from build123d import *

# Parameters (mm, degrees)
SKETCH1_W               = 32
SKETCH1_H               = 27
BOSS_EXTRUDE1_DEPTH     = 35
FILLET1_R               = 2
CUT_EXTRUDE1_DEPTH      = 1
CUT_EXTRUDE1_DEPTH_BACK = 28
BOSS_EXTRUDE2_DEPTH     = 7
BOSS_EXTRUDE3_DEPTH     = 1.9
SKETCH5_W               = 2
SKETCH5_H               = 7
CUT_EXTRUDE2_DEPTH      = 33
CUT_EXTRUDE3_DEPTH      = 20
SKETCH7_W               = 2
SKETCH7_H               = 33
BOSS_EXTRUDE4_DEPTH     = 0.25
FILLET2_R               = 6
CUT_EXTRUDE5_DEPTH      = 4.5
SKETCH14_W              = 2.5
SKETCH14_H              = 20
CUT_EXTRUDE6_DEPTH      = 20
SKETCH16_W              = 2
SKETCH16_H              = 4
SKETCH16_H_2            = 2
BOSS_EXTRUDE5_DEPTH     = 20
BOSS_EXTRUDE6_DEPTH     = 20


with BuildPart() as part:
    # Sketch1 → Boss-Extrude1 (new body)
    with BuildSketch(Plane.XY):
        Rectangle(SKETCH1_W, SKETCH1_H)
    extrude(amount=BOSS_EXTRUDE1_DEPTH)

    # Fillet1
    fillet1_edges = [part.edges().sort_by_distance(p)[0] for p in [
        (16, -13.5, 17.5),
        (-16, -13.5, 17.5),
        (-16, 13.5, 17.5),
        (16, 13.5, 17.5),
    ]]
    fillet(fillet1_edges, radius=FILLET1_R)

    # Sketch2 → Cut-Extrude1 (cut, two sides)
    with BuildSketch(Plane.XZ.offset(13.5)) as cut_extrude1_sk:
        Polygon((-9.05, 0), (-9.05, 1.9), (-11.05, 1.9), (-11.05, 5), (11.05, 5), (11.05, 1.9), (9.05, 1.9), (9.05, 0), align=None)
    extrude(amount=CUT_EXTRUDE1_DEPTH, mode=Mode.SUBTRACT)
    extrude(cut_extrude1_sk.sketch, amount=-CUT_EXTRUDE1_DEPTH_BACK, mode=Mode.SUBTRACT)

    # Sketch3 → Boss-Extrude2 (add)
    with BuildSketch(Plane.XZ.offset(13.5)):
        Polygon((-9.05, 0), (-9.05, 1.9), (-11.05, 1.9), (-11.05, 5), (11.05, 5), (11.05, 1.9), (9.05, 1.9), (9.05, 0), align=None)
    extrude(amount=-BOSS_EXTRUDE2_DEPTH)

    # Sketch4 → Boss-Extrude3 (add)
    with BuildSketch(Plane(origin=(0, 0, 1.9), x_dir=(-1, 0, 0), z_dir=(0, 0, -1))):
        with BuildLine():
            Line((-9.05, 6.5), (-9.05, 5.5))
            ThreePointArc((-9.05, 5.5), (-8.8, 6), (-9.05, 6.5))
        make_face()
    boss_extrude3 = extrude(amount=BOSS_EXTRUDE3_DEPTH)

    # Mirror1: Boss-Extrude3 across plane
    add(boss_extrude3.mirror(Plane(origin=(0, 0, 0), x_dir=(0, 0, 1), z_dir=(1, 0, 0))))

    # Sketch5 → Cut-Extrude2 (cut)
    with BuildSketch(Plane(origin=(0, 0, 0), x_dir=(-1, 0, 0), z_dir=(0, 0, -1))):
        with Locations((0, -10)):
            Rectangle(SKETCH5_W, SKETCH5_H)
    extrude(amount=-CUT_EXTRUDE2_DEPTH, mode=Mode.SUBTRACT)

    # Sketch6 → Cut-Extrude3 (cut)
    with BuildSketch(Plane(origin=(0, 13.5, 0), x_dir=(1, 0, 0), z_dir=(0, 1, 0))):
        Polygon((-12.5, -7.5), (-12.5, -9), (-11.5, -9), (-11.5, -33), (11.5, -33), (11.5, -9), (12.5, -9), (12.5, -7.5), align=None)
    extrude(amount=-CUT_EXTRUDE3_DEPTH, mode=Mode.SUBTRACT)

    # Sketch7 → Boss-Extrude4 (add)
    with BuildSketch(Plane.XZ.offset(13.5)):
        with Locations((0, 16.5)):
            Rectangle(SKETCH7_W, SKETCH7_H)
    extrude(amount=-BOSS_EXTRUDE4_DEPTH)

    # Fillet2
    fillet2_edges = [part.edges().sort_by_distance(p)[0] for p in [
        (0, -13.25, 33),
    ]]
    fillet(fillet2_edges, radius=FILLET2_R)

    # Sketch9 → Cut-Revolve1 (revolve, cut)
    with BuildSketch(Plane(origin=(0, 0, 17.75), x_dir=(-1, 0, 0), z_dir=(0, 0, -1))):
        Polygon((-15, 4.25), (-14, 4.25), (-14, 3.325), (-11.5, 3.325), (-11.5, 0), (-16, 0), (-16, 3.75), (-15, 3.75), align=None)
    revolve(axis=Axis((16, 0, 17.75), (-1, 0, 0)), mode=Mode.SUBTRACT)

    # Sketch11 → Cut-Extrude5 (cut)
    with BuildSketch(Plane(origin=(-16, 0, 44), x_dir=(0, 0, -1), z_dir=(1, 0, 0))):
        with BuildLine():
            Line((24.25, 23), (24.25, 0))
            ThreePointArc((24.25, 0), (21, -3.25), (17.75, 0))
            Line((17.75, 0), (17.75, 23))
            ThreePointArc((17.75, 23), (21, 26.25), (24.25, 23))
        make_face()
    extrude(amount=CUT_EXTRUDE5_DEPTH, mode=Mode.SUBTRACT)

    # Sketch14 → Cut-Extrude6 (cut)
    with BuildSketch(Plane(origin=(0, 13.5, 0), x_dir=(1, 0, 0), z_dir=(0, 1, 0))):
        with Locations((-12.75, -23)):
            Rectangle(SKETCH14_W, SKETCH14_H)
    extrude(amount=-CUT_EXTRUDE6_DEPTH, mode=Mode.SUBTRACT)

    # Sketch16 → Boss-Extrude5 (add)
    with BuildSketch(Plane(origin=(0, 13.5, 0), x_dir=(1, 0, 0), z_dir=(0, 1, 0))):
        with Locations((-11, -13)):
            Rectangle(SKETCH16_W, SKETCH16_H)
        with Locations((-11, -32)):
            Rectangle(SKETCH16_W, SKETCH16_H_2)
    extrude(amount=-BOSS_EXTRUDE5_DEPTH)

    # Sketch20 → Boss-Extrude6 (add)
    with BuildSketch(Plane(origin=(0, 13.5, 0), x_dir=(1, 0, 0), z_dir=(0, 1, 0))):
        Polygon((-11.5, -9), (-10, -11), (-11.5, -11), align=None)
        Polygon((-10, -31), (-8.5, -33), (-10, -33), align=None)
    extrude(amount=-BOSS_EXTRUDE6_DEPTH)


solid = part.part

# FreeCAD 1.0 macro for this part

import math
import FreeCAD as App
import Part
import Sketcher
Q = App.Units.Quantity


def edges_at(feature, points):
    """Names of the edges that pass closest to the given points."""
    edges = feature.Shape.Edges
    near = lambda p: min(range(len(edges)), key=lambda i: edges[i].distToShape(Part.Vertex(*p))[0])
    return sorted({f"Edge{near(p) + 1}" for p in points})

doc = App.newDocument("Part")
body = doc.addObject("PartDesign::Body", "Body")

sketch1 = body.newObject("Sketcher::SketchObject", "Sketch")
sketch1.AttachmentSupport = (doc.getObject("XY_Plane"), [""])
sketch1.MapMode = "FlatFace"
sketch1.addGeometry([
    Part.LineSegment(App.Vector(-16, 14, 0), App.Vector(-16, -14, 0)),
    Part.LineSegment(App.Vector(-16, -14, 0), App.Vector(16, -14, 0)),
    Part.LineSegment(App.Vector(16, -14, 0), App.Vector(16, 14, 0)),
    Part.LineSegment(App.Vector(16, 14, 0), App.Vector(-16, 14, 0)),
], False)
sketch1.addConstraint([
    Sketcher.Constraint("Coincident", 0, 2, 1, 1),
    Sketcher.Constraint("Coincident", 1, 2, 2, 1),
    Sketcher.Constraint("Coincident", 2, 2, 3, 1),
    Sketcher.Constraint("Coincident", 3, 2, 0, 1),
    Sketcher.Constraint("Vertical", 0),
    Sketcher.Constraint("Horizontal", 1),
    Sketcher.Constraint("Vertical", 2),
    Sketcher.Constraint("Horizontal", 3),
    Sketcher.Constraint("Symmetric", 0, 2, 2, 2, -1, 1),
    Sketcher.Constraint("DistanceX", 1, 1, 1, 2, Q("32 mm")),
    Sketcher.Constraint("DistanceY", 0, 2, 0, 1, Q("27 mm")),
])
pad1 = body.newObject("PartDesign::Pad", "Pad")
pad1.Profile = sketch1
pad1.Length = 35
doc.recompute()

fillet = body.newObject("PartDesign::Fillet", "Fillet")
fillet.Base = (pad1, edges_at(pad1, [
    (16, -13.5, 17.5),
    (-16, -13.5, 17.5),
    (-16, 13.5, 17.5),
    (16, 13.5, 17.5),
]))
fillet.Radius = 2

sketch2 = body.newObject("Sketcher::SketchObject", "Sketch001")
sketch2.AttachmentSupport = (doc.getObject("XZ_Plane"), [""])
sketch2.MapMode = "FlatFace"
sketch2.AttachmentOffset = App.Placement(App.Vector(0, 0, 13.5), App.Rotation())
sketch2.addGeometry([
    Part.LineSegment(App.Vector(-9.1, 1.9, 0), App.Vector(-9.1, 0, 0)),
    Part.LineSegment(App.Vector(-9.1, 0, 0), App.Vector(9.1, 0, 0)),
    Part.LineSegment(App.Vector(9.1, 0, 0), App.Vector(9.1, 1.9, 0)),
    Part.LineSegment(App.Vector(9.1, 1.9, 0), App.Vector(11.1, 1.9, 0)),
    Part.LineSegment(App.Vector(11.1, 1.9, 0), App.Vector(11.1, 5, 0)),
    Part.LineSegment(App.Vector(11.1, 5, 0), App.Vector(-11.1, 5, 0)),
    Part.LineSegment(App.Vector(-11.1, 5, 0), App.Vector(-11.1, 1.9, 0)),
    Part.LineSegment(App.Vector(-11.1, 1.9, 0), App.Vector(-9.1, 1.9, 0)),
], False)
sketch2.addConstraint([
    Sketcher.Constraint("Coincident", 0, 2, 1, 1),
    Sketcher.Constraint("Coincident", 1, 2, 2, 1),
    Sketcher.Constraint("Coincident", 2, 2, 3, 1),
    Sketcher.Constraint("Coincident", 3, 2, 4, 1),
    Sketcher.Constraint("Coincident", 4, 2, 5, 1),
    Sketcher.Constraint("Coincident", 5, 2, 6, 1),
    Sketcher.Constraint("Coincident", 6, 2, 7, 1),
    Sketcher.Constraint("Coincident", 7, 2, 0, 1),
    Sketcher.Constraint("Vertical", 0),
    Sketcher.Constraint("Horizontal", 1),
    Sketcher.Constraint("Vertical", 2),
    Sketcher.Constraint("Horizontal", 3),
    Sketcher.Constraint("Vertical", 4),
    Sketcher.Constraint("Horizontal", 5),
    Sketcher.Constraint("Vertical", 6),
    Sketcher.Constraint("Horizontal", 7),
    Sketcher.Constraint("Symmetric", 0, 2, 1, 2, -1, 1),
    Sketcher.Constraint("Symmetric", 3, 2, 6, 2, -2),
    Sketcher.Constraint("DistanceX", 3, 1, 3, 2, Q("2 mm")),
    Sketcher.Constraint("DistanceX", 1, 1, 1, 2, Q("18.1 mm")),
    Sketcher.Constraint("DistanceY", 0, 2, 0, 1, Q("1.9 mm")),
    Sketcher.Constraint("DistanceY", 4, 1, 4, 2, Q("3.1 mm")),
])
pocket1 = body.newObject("PartDesign::Pocket", "Pocket")
pocket1.Profile = sketch2
pocket1.Type = "ThroughAll"
pocket1.Midplane = True

sketch3 = body.newObject("Sketcher::SketchObject", "Sketch002")
sketch3.AttachmentSupport = (doc.getObject("XZ_Plane"), [""])
sketch3.MapMode = "FlatFace"
sketch3.AttachmentOffset = App.Placement(App.Vector(0, 0, 13.5), App.Rotation())
sketch3.addGeometry([
    Part.LineSegment(App.Vector(-9.1, 1.9, 0), App.Vector(-9.1, 0, 0)),
    Part.LineSegment(App.Vector(-9.1, 0, 0), App.Vector(9.1, 0, 0)),
    Part.LineSegment(App.Vector(9.1, 0, 0), App.Vector(9.1, 1.9, 0)),
    Part.LineSegment(App.Vector(9.1, 1.9, 0), App.Vector(11.1, 1.9, 0)),
    Part.LineSegment(App.Vector(11.1, 1.9, 0), App.Vector(11.1, 5, 0)),
    Part.LineSegment(App.Vector(11.1, 5, 0), App.Vector(-11.1, 5, 0)),
    Part.LineSegment(App.Vector(-11.1, 5, 0), App.Vector(-11.1, 1.9, 0)),
    Part.LineSegment(App.Vector(-11.1, 1.9, 0), App.Vector(-9.1, 1.9, 0)),
], False)
sketch3.addConstraint([
    Sketcher.Constraint("Coincident", 0, 2, 1, 1),
    Sketcher.Constraint("Coincident", 1, 2, 2, 1),
    Sketcher.Constraint("Coincident", 2, 2, 3, 1),
    Sketcher.Constraint("Coincident", 3, 2, 4, 1),
    Sketcher.Constraint("Coincident", 4, 2, 5, 1),
    Sketcher.Constraint("Coincident", 5, 2, 6, 1),
    Sketcher.Constraint("Coincident", 6, 2, 7, 1),
    Sketcher.Constraint("Coincident", 7, 2, 0, 1),
    Sketcher.Constraint("Vertical", 0),
    Sketcher.Constraint("Horizontal", 1),
    Sketcher.Constraint("Vertical", 2),
    Sketcher.Constraint("Horizontal", 3),
    Sketcher.Constraint("Vertical", 4),
    Sketcher.Constraint("Horizontal", 5),
    Sketcher.Constraint("Vertical", 6),
    Sketcher.Constraint("Horizontal", 7),
    Sketcher.Constraint("Symmetric", 0, 2, 1, 2, -1, 1),
    Sketcher.Constraint("Symmetric", 3, 2, 6, 2, -2),
    Sketcher.Constraint("DistanceX", 3, 1, 3, 2, Q("2 mm")),
    Sketcher.Constraint("DistanceX", 1, 1, 1, 2, Q("18.1 mm")),
    Sketcher.Constraint("DistanceY", 0, 2, 0, 1, Q("1.9 mm")),
    Sketcher.Constraint("DistanceY", 4, 1, 4, 2, Q("3.1 mm")),
])
pad2 = body.newObject("PartDesign::Pad", "Pad001")
pad2.Profile = sketch3
pad2.Length = 7
pad2.Reversed = True

sketch4 = body.newObject("Sketcher::SketchObject", "Sketch003")
sketch4.AttachmentSupport = (doc.getObject("XY_Plane"), [""])
sketch4.MapMode = "FlatFace"
sketch4.AttachmentOffset = App.Placement(App.Vector(0, 0, 1.9), App.Rotation())
sketch4.addGeometry([
    Part.LineSegment(App.Vector(9.1, 6.5, 0), App.Vector(9.1, 5.5, 0)),
    Part.ArcOfCircle(Part.Circle(App.Vector(9.4, 6, 0), App.Vector(0, 0, 1), 0.6), math.radians(127), math.radians(233)),
], False)
sketch4.addConstraint([
    Sketcher.Constraint("Coincident", 0, 1, 1, 1),
    Sketcher.Constraint("Coincident", 1, 2, 0, 2),
    Sketcher.Constraint("Vertical", 0),
    Sketcher.Constraint("DistanceY", 0, 2, 0, 1, Q("1 mm")),
    Sketcher.Constraint("DistanceY", -1, 1, 1, 3, Q("6 mm")),
    Sketcher.Constraint("Radius", 1, Q("0.625 mm")),
    Sketcher.Constraint("DistanceX", -1, 1, 0, 1, Q("9.05 mm")),
])
pad3 = body.newObject("PartDesign::Pad", "Pad002")
pad3.Profile = sketch4
pad3.Length = 1.9
pad3.Reversed = True
doc.recompute()

mirrored = body.newObject("PartDesign::Mirrored", "Mirrored")
mirrored.Originals = [pad3]
mirrored.MirrorPlane = (doc.getObject("YZ_Plane"), [""])
body.Tip = mirrored

sketch5 = body.newObject("Sketcher::SketchObject", "Sketch004")
sketch5.AttachmentSupport = (doc.getObject("XY_Plane"), [""])
sketch5.MapMode = "FlatFace"
sketch5.addGeometry([
    Part.LineSegment(App.Vector(1, -6.5, 0), App.Vector(1, -13.5, 0)),
    Part.LineSegment(App.Vector(1, -13.5, 0), App.Vector(-1, -13.5, 0)),
    Part.LineSegment(App.Vector(-1, -13.5, 0), App.Vector(-1, -6.5, 0)),
    Part.LineSegment(App.Vector(-1, -6.5, 0), App.Vector(1, -6.5, 0)),
], False)
sketch5.addConstraint([
    Sketcher.Constraint("Coincident", 0, 2, 1, 1),
    Sketcher.Constraint("Coincident", 1, 2, 2, 1),
    Sketcher.Constraint("Coincident", 2, 2, 3, 1),
    Sketcher.Constraint("Coincident", 3, 2, 0, 1),
    Sketcher.Constraint("Vertical", 0),
    Sketcher.Constraint("Horizontal", 1),
    Sketcher.Constraint("Vertical", 2),
    Sketcher.Constraint("Horizontal", 3),
    Sketcher.Constraint("DistanceX", 1, 2, 1, 1, Q("2 mm")),
    Sketcher.Constraint("DistanceY", 0, 2, 0, 1, Q("7 mm")),
    Sketcher.Constraint("DistanceX", -1, 1, 0, 2, Q("1 mm")),
    Sketcher.Constraint("DistanceY", 0, 2, -1, 1, Q("13.5 mm")),
])
pocket2 = body.newObject("PartDesign::Pocket", "Pocket001")
pocket2.Profile = sketch5
pocket2.Length = 33
pocket2.Reversed = True

sketch6 = body.newObject("Sketcher::SketchObject", "Sketch005")
sketch6.AttachmentSupport = (doc.getObject("XZ_Plane"), [""])
sketch6.MapMode = "FlatFace"
sketch6.AttachmentOffset = App.Placement(App.Vector(0, 0, -13.5), App.Rotation())
sketch6.addGeometry([
    Part.LineSegment(App.Vector(-12.5, 7.5, 0), App.Vector(-12.5, 9, 0)),
    Part.LineSegment(App.Vector(-12.5, 9, 0), App.Vector(-11.5, 9, 0)),
    Part.LineSegment(App.Vector(-11.5, 9, 0), App.Vector(-11.5, 33, 0)),
    Part.LineSegment(App.Vector(-11.5, 33, 0), App.Vector(11.5, 33, 0)),
    Part.LineSegment(App.Vector(11.5, 33, 0), App.Vector(11.5, 9, 0)),
    Part.LineSegment(App.Vector(11.5, 9, 0), App.Vector(12.5, 9, 0)),
    Part.LineSegment(App.Vector(12.5, 9, 0), App.Vector(12.5, 7.5, 0)),
    Part.LineSegment(App.Vector(12.5, 7.5, 0), App.Vector(-12.5, 7.5, 0)),
], False)
sketch6.addConstraint([
    Sketcher.Constraint("Coincident", 0, 2, 1, 1),
    Sketcher.Constraint("Coincident", 1, 2, 2, 1),
    Sketcher.Constraint("Coincident", 2, 2, 3, 1),
    Sketcher.Constraint("Coincident", 3, 2, 4, 1),
    Sketcher.Constraint("Coincident", 4, 2, 5, 1),
    Sketcher.Constraint("Coincident", 5, 2, 6, 1),
    Sketcher.Constraint("Coincident", 6, 2, 7, 1),
    Sketcher.Constraint("Coincident", 7, 2, 0, 1),
    Sketcher.Constraint("Vertical", 0),
    Sketcher.Constraint("Horizontal", 1),
    Sketcher.Constraint("Vertical", 2),
    Sketcher.Constraint("Horizontal", 3),
    Sketcher.Constraint("Vertical", 4),
    Sketcher.Constraint("Horizontal", 5),
    Sketcher.Constraint("Vertical", 6),
    Sketcher.Constraint("Horizontal", 7),
    Sketcher.Constraint("Symmetric", 1, 2, 4, 2, -2),
    Sketcher.Constraint("Equal", 1, 5),
    Sketcher.Constraint("DistanceX", 1, 1, 1, 2, Q("1 mm")),
    Sketcher.Constraint("DistanceX", 3, 1, 3, 2, Q("23 mm")),
    Sketcher.Constraint("DistanceY", 2, 1, 2, 2, Q("24 mm")),
    Sketcher.Constraint("DistanceY", 0, 1, 0, 2, Q("1.5 mm")),
    Sketcher.Constraint("DistanceY", -1, 1, 0, 2, Q("9 mm")),
])
pocket3 = body.newObject("PartDesign::Pocket", "Pocket002")
pocket3.Profile = sketch6
pocket3.Length = 20
pocket3.Reversed = True

sketch7 = body.newObject("Sketcher::SketchObject", "Sketch006")
sketch7.AttachmentSupport = (doc.getObject("XZ_Plane"), [""])
sketch7.MapMode = "FlatFace"
sketch7.AttachmentOffset = App.Placement(App.Vector(0, 0, 13.5), App.Rotation())
sketch7.addGeometry([
    Part.LineSegment(App.Vector(-1, 33, 0), App.Vector(-1, 0, 0)),
    Part.LineSegment(App.Vector(-1, 0, 0), App.Vector(1, 0, 0)),
    Part.LineSegment(App.Vector(1, 0, 0), App.Vector(1, 33, 0)),
    Part.LineSegment(App.Vector(1, 33, 0), App.Vector(-1, 33, 0)),
], False)
sketch7.addConstraint([
    Sketcher.Constraint("Coincident", 0, 2, 1, 1),
    Sketcher.Constraint("Coincident", 1, 2, 2, 1),
    Sketcher.Constraint("Coincident", 2, 2, 3, 1),
    Sketcher.Constraint("Coincident", 3, 2, 0, 1),
    Sketcher.Constraint("Vertical", 0),
    Sketcher.Constraint("Horizontal", 1),
    Sketcher.Constraint("Vertical", 2),
    Sketcher.Constraint("Horizontal", 3),
    Sketcher.Constraint("Symmetric", 0, 2, 1, 2, -1, 1),
    Sketcher.Constraint("DistanceX", 1, 1, 1, 2, Q("2 mm")),
    Sketcher.Constraint("DistanceY", 0, 2, 0, 1, Q("33 mm")),
])
pad4 = body.newObject("PartDesign::Pad", "Pad003")
pad4.Profile = sketch7
pad4.Length = 0.25
pad4.Reversed = True
doc.recompute()

fillet2 = body.newObject("PartDesign::Fillet", "Fillet001")
fillet2.Base = (pad4, edges_at(pad4, [(0, -13.25, 33)]))
fillet2.Radius = 6

sketch8 = body.newObject("Sketcher::SketchObject", "Sketch007")
sketch8.AttachmentSupport = (doc.getObject("XY_Plane"), [""])
sketch8.MapMode = "FlatFace"
sketch8.AttachmentOffset = App.Placement(App.Vector(0, 0, 17.75), App.Rotation())
sketch8.addGeometry([
    Part.LineSegment(App.Vector(14, 4.2, 0), App.Vector(15, 4.2, 0)),
    Part.LineSegment(App.Vector(15, 4.2, 0), App.Vector(15, 3.8, 0)),
    Part.LineSegment(App.Vector(15, 3.8, 0), App.Vector(16, 3.8, 0)),
    Part.LineSegment(App.Vector(16, 3.8, 0), App.Vector(16, 0, 0)),
    Part.LineSegment(App.Vector(16, 0, 0), App.Vector(11.5, 0, 0)),
    Part.LineSegment(App.Vector(11.5, 0, 0), App.Vector(11.5, 3.3, 0)),
    Part.LineSegment(App.Vector(11.5, 3.3, 0), App.Vector(14, 3.3, 0)),
    Part.LineSegment(App.Vector(14, 3.3, 0), App.Vector(14, 4.2, 0)),
], False)
sketch8.addConstraint([
    Sketcher.Constraint("Coincident", 0, 2, 1, 1),
    Sketcher.Constraint("Coincident", 1, 2, 2, 1),
    Sketcher.Constraint("Coincident", 2, 2, 3, 1),
    Sketcher.Constraint("Coincident", 3, 2, 4, 1),
    Sketcher.Constraint("Coincident", 4, 2, 5, 1),
    Sketcher.Constraint("Coincident", 5, 2, 6, 1),
    Sketcher.Constraint("Coincident", 6, 2, 7, 1),
    Sketcher.Constraint("Coincident", 7, 2, 0, 1),
    Sketcher.Constraint("Horizontal", 0),
    Sketcher.Constraint("Vertical", 1),
    Sketcher.Constraint("Horizontal", 2),
    Sketcher.Constraint("Vertical", 3),
    Sketcher.Constraint("Horizontal", 4),
    Sketcher.Constraint("Vertical", 5),
    Sketcher.Constraint("Horizontal", 6),
    Sketcher.Constraint("Vertical", 7),
    Sketcher.Constraint("PointOnObject", 3, 2, -1),
    Sketcher.Constraint("Equal", 0, 2),
    Sketcher.Constraint("DistanceX", 0, 1, 0, 2, Q("1 mm")),
    Sketcher.Constraint("DistanceX", 4, 2, 4, 1, Q("4.5 mm")),
    Sketcher.Constraint("DistanceY", 1, 2, 1, 1, Q("0.5 mm")),
    Sketcher.Constraint("DistanceX", -1, 1, 0, 2, Q("15 mm")),
    Sketcher.Constraint("DistanceY", 3, 2, 3, 1, Q("3.75 mm")),
    Sketcher.Constraint("DistanceY", 5, 1, 5, 2, Q("3.325 mm")),
])
groove = body.newObject("PartDesign::Groove", "Groove")
groove.Profile = sketch8
groove.ReferenceAxis = (sketch8, ["H_Axis"])
groove.Angle = 360

sketch9 = body.newObject("Sketcher::SketchObject", "Sketch008")
sketch9.AttachmentSupport = (doc.getObject("YZ_Plane"), [""])
sketch9.MapMode = "FlatFace"
sketch9.AttachmentOffset = App.Placement(App.Vector(0, 0, -16), App.Rotation())
sketch9.addGeometry([
    Part.LineSegment(App.Vector(0, 19.8, 0), App.Vector(23, 19.8, 0)),
    Part.ArcOfCircle(Part.Circle(App.Vector(23, 23, 0), App.Vector(0, 0, 1), 3.2), math.radians(-90), math.radians(90)),
    Part.LineSegment(App.Vector(23, 26.2, 0), App.Vector(0, 26.2, 0)),
    Part.ArcOfCircle(Part.Circle(App.Vector(0, 23, 0), App.Vector(0, 0, 1), 3.2), math.radians(90), math.radians(270)),
], False)
sketch9.addConstraint([
    Sketcher.Constraint("Tangent", 0, 2, 1, 1),
    Sketcher.Constraint("Tangent", 1, 2, 2, 1),
    Sketcher.Constraint("Tangent", 2, 2, 3, 1),
    Sketcher.Constraint("Tangent", 3, 2, 0, 1),
    Sketcher.Constraint("Horizontal", 0),
    Sketcher.Constraint("Horizontal", 2),
    Sketcher.Constraint("PointOnObject", 3, 3, -2),
    Sketcher.Constraint("DistanceX", 0, 1, 0, 2, Q("23 mm")),
    Sketcher.Constraint("Radius", 1, Q("3.25 mm")),
    Sketcher.Constraint("DistanceY", -1, 1, 1, 3, Q("23 mm")),
])
pocket4 = body.newObject("PartDesign::Pocket", "Pocket003")
pocket4.Profile = sketch9
pocket4.Length = 4.5
pocket4.Reversed = True

sketch10 = body.newObject("Sketcher::SketchObject", "Sketch009")
sketch10.AttachmentSupport = (doc.getObject("XZ_Plane"), [""])
sketch10.MapMode = "FlatFace"
sketch10.AttachmentOffset = App.Placement(App.Vector(0, 0, -13.5), App.Rotation())
sketch10.addGeometry([
    Part.LineSegment(App.Vector(-14, 13, 0), App.Vector(-14, 33, 0)),
    Part.LineSegment(App.Vector(-14, 33, 0), App.Vector(-11.5, 33, 0)),
    Part.LineSegment(App.Vector(-11.5, 33, 0), App.Vector(-11.5, 13, 0)),
    Part.LineSegment(App.Vector(-11.5, 13, 0), App.Vector(-14, 13, 0)),
], False)
sketch10.addConstraint([
    Sketcher.Constraint("Coincident", 0, 2, 1, 1),
    Sketcher.Constraint("Coincident", 1, 2, 2, 1),
    Sketcher.Constraint("Coincident", 2, 2, 3, 1),
    Sketcher.Constraint("Coincident", 3, 2, 0, 1),
    Sketcher.Constraint("Vertical", 0),
    Sketcher.Constraint("Horizontal", 1),
    Sketcher.Constraint("Vertical", 2),
    Sketcher.Constraint("Horizontal", 3),
    Sketcher.Constraint("DistanceY", 0, 1, 0, 2, Q("20 mm")),
    Sketcher.Constraint("DistanceX", 1, 1, 1, 2, Q("2.5 mm")),
    Sketcher.Constraint("DistanceX", 0, 2, -1, 1, Q("14 mm")),
    Sketcher.Constraint("DistanceY", -1, 1, 0, 2, Q("33 mm")),
])
pocket5 = body.newObject("PartDesign::Pocket", "Pocket004")
pocket5.Profile = sketch10
pocket5.Length = 20
pocket5.Reversed = True

sketch11 = body.newObject("Sketcher::SketchObject", "Sketch010")
sketch11.AttachmentSupport = (doc.getObject("XZ_Plane"), [""])
sketch11.MapMode = "FlatFace"
sketch11.AttachmentOffset = App.Placement(App.Vector(0, 0, -13.5), App.Rotation())
sketch11.addGeometry([
    Part.LineSegment(App.Vector(-12, 11, 0), App.Vector(-12, 15, 0)),
    Part.LineSegment(App.Vector(-12, 15, 0), App.Vector(-10, 15, 0)),
    Part.LineSegment(App.Vector(-10, 15, 0), App.Vector(-10, 11, 0)),
    Part.LineSegment(App.Vector(-10, 11, 0), App.Vector(-12, 11, 0)),
    Part.LineSegment(App.Vector(-12, 31, 0), App.Vector(-12, 33, 0)),
    Part.LineSegment(App.Vector(-12, 33, 0), App.Vector(-10, 33, 0)),
    Part.LineSegment(App.Vector(-10, 33, 0), App.Vector(-10, 31, 0)),
    Part.LineSegment(App.Vector(-10, 31, 0), App.Vector(-12, 31, 0)),
], False)
sketch11.addConstraint([
    Sketcher.Constraint("Coincident", 0, 2, 1, 1),
    Sketcher.Constraint("Coincident", 1, 2, 2, 1),
    Sketcher.Constraint("Coincident", 2, 2, 3, 1),
    Sketcher.Constraint("Coincident", 3, 2, 0, 1),
    Sketcher.Constraint("Coincident", 4, 2, 5, 1),
    Sketcher.Constraint("Coincident", 5, 2, 6, 1),
    Sketcher.Constraint("Coincident", 6, 2, 7, 1),
    Sketcher.Constraint("Coincident", 7, 2, 4, 1),
    Sketcher.Constraint("Vertical", 0),
    Sketcher.Constraint("Horizontal", 1),
    Sketcher.Constraint("Vertical", 2),
    Sketcher.Constraint("Horizontal", 3),
    Sketcher.Constraint("Vertical", 4),
    Sketcher.Constraint("Horizontal", 5),
    Sketcher.Constraint("Vertical", 6),
    Sketcher.Constraint("Horizontal", 7),
    Sketcher.Constraint("Vertical", 3, 2, 4, 2),
    Sketcher.Constraint("Vertical", 2, 2, 5, 2),
    Sketcher.Constraint("Equal", 7, 4),
    Sketcher.Constraint("DistanceX", 1, 1, 1, 2, Q("2 mm")),
    Sketcher.Constraint("DistanceY", 0, 1, 0, 2, Q("4 mm")),
    Sketcher.Constraint("DistanceX", 0, 2, -1, 1, Q("12 mm")),
    Sketcher.Constraint("DistanceY", -1, 1, 0, 2, Q("15 mm")),
    Sketcher.Constraint("DistanceY", -1, 1, 4, 2, Q("33 mm")),
])
pad5 = body.newObject("PartDesign::Pad", "Pad004")
pad5.Profile = sketch11
pad5.Length = 20

sketch12 = body.newObject("Sketcher::SketchObject", "Sketch011")
sketch12.AttachmentSupport = (doc.getObject("XZ_Plane"), [""])
sketch12.MapMode = "FlatFace"
sketch12.AttachmentOffset = App.Placement(App.Vector(0, 0, -13.5), App.Rotation())
sketch12.addGeometry([
    Part.LineSegment(App.Vector(-10, 11, 0), App.Vector(-11.5, 9, 0)),
    Part.LineSegment(App.Vector(-11.5, 9, 0), App.Vector(-11.5, 11, 0)),
    Part.LineSegment(App.Vector(-11.5, 11, 0), App.Vector(-10, 11, 0)),
    Part.LineSegment(App.Vector(-8.5, 33, 0), App.Vector(-10, 31, 0)),
    Part.LineSegment(App.Vector(-10, 31, 0), App.Vector(-10, 33, 0)),
    Part.LineSegment(App.Vector(-10, 33, 0), App.Vector(-8.5, 33, 0)),
], False)
sketch12.addConstraint([
    Sketcher.Constraint("Coincident", 0, 2, 1, 1),
    Sketcher.Constraint("Coincident", 1, 2, 2, 1),
    Sketcher.Constraint("Coincident", 2, 2, 0, 1),
    Sketcher.Constraint("Coincident", 3, 2, 4, 1),
    Sketcher.Constraint("Coincident", 4, 2, 5, 1),
    Sketcher.Constraint("Coincident", 5, 2, 3, 1),
    Sketcher.Constraint("Vertical", 1),
    Sketcher.Constraint("Horizontal", 2),
    Sketcher.Constraint("Vertical", 4),
    Sketcher.Constraint("Horizontal", 5),
    Sketcher.Constraint("Parallel", 0, 3),
    Sketcher.Constraint("Vertical", 2, 2, 3, 2),
    Sketcher.Constraint("Equal", 2, 5),
    Sketcher.Constraint("DistanceY", 1, 1, 1, 2, Q("2 mm")),
    Sketcher.Constraint("DistanceX", 2, 1, 2, 2, Q("1.5 mm")),
    Sketcher.Constraint("DistanceY", -1, 1, 0, 2, Q("9 mm")),
    Sketcher.Constraint("DistanceX", 2, 2, -1, 1, Q("10 mm")),
    Sketcher.Constraint("DistanceY", -1, 1, 3, 2, Q("31 mm")),
])
pad6 = body.newObject("PartDesign::Pad", "Pad005")
pad6.Profile = sketch12
pad6.Length = 20

doc.recompute()
